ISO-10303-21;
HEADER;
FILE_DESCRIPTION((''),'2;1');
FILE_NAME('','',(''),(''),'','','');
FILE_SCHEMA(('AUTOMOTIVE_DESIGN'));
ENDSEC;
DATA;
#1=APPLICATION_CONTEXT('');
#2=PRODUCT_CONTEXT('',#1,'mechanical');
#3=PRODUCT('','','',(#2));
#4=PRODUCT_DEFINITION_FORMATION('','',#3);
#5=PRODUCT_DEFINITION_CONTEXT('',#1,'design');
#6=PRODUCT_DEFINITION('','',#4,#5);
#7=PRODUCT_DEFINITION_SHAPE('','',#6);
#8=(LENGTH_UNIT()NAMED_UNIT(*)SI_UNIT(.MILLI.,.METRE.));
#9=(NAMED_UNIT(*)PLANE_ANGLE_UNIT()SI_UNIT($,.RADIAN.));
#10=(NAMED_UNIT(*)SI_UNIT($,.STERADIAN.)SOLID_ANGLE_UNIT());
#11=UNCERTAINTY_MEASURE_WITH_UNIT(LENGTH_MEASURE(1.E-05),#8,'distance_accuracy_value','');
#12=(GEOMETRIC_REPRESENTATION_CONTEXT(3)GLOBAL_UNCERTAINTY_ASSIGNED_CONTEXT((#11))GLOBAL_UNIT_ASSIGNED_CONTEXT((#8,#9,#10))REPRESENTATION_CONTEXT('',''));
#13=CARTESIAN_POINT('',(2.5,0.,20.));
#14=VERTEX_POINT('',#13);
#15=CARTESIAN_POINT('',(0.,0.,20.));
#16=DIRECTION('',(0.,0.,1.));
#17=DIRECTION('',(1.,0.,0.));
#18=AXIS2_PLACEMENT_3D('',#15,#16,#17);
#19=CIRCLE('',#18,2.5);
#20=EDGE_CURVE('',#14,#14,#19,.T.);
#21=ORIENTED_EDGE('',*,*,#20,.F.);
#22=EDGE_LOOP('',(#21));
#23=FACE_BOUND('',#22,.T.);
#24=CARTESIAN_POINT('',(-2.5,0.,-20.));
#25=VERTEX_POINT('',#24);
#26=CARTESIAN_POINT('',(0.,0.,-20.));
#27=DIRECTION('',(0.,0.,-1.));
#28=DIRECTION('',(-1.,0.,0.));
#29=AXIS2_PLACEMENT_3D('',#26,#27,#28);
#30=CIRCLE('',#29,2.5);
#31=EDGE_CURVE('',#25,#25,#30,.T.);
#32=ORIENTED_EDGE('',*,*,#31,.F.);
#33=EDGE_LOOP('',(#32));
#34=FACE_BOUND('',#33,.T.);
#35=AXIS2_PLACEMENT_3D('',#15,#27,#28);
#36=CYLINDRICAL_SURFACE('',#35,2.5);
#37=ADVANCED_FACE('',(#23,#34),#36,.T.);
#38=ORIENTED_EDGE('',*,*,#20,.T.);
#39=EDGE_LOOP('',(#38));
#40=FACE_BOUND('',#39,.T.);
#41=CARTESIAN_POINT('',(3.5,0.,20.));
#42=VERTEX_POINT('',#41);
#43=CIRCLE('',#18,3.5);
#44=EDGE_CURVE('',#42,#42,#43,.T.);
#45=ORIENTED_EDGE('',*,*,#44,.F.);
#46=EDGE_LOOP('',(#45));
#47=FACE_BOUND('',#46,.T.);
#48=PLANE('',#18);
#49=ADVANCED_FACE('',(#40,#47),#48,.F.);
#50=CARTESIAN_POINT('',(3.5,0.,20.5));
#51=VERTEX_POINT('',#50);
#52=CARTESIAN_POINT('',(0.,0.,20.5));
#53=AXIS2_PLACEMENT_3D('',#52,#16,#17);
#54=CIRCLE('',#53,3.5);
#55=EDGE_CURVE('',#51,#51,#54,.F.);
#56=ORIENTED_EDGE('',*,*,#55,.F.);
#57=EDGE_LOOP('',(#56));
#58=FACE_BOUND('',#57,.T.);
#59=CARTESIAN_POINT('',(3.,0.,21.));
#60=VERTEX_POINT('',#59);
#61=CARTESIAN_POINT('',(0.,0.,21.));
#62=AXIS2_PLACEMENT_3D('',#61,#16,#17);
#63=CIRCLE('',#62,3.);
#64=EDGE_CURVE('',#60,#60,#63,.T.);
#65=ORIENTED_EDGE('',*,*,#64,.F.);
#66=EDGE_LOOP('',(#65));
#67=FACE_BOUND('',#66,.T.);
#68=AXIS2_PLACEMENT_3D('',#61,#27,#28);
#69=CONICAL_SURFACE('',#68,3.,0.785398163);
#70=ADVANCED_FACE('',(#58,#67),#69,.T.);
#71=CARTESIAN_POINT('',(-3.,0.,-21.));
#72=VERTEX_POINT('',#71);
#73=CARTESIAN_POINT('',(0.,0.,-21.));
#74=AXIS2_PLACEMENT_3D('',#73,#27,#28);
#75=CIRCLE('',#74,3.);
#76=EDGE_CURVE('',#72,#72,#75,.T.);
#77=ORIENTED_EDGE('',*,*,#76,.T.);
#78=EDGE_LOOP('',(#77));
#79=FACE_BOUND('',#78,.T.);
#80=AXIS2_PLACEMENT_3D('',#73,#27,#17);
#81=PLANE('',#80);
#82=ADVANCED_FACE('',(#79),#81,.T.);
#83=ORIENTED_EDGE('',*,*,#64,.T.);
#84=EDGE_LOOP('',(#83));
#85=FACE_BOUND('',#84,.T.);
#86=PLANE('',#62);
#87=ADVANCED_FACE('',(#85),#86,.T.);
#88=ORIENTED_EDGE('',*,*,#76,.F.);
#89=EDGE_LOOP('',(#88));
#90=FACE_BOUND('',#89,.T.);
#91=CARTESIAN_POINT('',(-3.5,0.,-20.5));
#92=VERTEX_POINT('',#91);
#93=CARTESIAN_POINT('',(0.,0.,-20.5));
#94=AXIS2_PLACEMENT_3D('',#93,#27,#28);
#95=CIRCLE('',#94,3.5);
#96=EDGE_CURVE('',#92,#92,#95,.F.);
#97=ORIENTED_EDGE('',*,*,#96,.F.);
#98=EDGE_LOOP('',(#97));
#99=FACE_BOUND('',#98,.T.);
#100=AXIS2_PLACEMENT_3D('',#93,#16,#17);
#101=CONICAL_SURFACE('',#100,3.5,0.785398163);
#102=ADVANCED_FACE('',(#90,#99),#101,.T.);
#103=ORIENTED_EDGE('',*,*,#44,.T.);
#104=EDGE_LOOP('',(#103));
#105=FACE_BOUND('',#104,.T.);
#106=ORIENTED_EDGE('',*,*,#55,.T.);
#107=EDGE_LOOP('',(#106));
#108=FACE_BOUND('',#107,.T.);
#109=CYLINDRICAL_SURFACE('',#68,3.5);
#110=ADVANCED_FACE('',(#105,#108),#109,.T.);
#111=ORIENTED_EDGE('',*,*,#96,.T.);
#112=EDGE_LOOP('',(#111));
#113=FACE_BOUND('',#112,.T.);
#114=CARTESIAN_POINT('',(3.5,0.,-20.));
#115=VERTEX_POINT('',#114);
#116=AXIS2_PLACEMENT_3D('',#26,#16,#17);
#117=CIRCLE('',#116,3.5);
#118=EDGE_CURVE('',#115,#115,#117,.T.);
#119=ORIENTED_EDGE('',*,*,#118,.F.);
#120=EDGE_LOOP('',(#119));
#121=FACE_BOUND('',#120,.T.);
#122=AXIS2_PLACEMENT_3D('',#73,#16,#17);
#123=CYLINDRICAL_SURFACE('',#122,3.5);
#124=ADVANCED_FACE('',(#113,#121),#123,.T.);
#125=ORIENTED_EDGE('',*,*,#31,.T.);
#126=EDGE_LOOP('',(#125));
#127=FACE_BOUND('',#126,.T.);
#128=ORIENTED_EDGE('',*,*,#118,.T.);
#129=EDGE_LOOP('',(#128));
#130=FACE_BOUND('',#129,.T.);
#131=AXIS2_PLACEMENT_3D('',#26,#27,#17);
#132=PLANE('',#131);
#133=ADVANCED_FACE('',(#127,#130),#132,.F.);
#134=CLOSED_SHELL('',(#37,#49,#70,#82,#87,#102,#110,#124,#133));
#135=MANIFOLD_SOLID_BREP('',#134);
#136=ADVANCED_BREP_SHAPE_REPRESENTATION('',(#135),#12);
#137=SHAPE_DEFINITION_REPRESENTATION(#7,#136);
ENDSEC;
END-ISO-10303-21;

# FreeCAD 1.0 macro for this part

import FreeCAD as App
import Part
import Sketcher


def edges_at(feature, points):
    """Names of the edges that pass closest to the given points."""
    edges = feature.Shape.Edges
    near = lambda p: min(range(len(edges)), key=lambda i: edges[i].distToShape(Part.Vertex(*p))[0])
    return sorted({f"Edge{near(p) + 1}" for p in points})

doc = App.newDocument("Part")
body = doc.addObject("PartDesign::Body", "Body")

sketch1 = body.newObject("Sketcher::SketchObject", "Sketch")
sketch1.AttachmentSupport = (doc.getObject("XY_Plane"), [""])
sketch1.MapMode = "FlatFace"
sketch1.addGeometry(Part.Circle(App.Vector(0, 0, 0), App.Vector(0, 0, 1), 2.5), False)
sketch1.addConstraint([
    Sketcher.Constraint("Coincident", 0, 3, -1, 1),
    Sketcher.Constraint("Diameter", 0, 5.0),
])
pad1 = body.newObject("PartDesign::Pad", "Pad")
pad1.Profile = sketch1
pad1.Length = 40
pad1.Midplane = True

sketch2 = body.newObject("Sketcher::SketchObject", "Sketch001")
sketch2.AttachmentSupport = (doc.getObject("XY_Plane"), [""])
sketch2.MapMode = "FlatFace"
sketch2.AttachmentOffset = App.Placement(App.Vector(0, 0, 20), App.Rotation())
sketch2.addGeometry(Part.Circle(App.Vector(0, 0, 0), App.Vector(0, 0, 1), 3.5), False)
sketch2.addConstraint([
    Sketcher.Constraint("Coincident", 0, 3, -1, 1),
    Sketcher.Constraint("Diameter", 0, 7.0),
])
pad2 = body.newObject("PartDesign::Pad", "Pad001")
pad2.Profile = sketch2
pad2.Length = 1
doc.recompute()

mirrored = body.newObject("PartDesign::Mirrored", "Mirrored")
mirrored.Originals = [pad2]
mirrored.MirrorPlane = (doc.getObject("XY_Plane"), [""])
body.Tip = mirrored
doc.recompute()

chamfer = body.newObject("PartDesign::Chamfer", "Chamfer")
chamfer.Base = (mirrored, edges_at(mirrored, [(-3.5, 0, 21), (-3.5, 0, -21)]))
chamfer.Size = 0.5

doc.recompute()
